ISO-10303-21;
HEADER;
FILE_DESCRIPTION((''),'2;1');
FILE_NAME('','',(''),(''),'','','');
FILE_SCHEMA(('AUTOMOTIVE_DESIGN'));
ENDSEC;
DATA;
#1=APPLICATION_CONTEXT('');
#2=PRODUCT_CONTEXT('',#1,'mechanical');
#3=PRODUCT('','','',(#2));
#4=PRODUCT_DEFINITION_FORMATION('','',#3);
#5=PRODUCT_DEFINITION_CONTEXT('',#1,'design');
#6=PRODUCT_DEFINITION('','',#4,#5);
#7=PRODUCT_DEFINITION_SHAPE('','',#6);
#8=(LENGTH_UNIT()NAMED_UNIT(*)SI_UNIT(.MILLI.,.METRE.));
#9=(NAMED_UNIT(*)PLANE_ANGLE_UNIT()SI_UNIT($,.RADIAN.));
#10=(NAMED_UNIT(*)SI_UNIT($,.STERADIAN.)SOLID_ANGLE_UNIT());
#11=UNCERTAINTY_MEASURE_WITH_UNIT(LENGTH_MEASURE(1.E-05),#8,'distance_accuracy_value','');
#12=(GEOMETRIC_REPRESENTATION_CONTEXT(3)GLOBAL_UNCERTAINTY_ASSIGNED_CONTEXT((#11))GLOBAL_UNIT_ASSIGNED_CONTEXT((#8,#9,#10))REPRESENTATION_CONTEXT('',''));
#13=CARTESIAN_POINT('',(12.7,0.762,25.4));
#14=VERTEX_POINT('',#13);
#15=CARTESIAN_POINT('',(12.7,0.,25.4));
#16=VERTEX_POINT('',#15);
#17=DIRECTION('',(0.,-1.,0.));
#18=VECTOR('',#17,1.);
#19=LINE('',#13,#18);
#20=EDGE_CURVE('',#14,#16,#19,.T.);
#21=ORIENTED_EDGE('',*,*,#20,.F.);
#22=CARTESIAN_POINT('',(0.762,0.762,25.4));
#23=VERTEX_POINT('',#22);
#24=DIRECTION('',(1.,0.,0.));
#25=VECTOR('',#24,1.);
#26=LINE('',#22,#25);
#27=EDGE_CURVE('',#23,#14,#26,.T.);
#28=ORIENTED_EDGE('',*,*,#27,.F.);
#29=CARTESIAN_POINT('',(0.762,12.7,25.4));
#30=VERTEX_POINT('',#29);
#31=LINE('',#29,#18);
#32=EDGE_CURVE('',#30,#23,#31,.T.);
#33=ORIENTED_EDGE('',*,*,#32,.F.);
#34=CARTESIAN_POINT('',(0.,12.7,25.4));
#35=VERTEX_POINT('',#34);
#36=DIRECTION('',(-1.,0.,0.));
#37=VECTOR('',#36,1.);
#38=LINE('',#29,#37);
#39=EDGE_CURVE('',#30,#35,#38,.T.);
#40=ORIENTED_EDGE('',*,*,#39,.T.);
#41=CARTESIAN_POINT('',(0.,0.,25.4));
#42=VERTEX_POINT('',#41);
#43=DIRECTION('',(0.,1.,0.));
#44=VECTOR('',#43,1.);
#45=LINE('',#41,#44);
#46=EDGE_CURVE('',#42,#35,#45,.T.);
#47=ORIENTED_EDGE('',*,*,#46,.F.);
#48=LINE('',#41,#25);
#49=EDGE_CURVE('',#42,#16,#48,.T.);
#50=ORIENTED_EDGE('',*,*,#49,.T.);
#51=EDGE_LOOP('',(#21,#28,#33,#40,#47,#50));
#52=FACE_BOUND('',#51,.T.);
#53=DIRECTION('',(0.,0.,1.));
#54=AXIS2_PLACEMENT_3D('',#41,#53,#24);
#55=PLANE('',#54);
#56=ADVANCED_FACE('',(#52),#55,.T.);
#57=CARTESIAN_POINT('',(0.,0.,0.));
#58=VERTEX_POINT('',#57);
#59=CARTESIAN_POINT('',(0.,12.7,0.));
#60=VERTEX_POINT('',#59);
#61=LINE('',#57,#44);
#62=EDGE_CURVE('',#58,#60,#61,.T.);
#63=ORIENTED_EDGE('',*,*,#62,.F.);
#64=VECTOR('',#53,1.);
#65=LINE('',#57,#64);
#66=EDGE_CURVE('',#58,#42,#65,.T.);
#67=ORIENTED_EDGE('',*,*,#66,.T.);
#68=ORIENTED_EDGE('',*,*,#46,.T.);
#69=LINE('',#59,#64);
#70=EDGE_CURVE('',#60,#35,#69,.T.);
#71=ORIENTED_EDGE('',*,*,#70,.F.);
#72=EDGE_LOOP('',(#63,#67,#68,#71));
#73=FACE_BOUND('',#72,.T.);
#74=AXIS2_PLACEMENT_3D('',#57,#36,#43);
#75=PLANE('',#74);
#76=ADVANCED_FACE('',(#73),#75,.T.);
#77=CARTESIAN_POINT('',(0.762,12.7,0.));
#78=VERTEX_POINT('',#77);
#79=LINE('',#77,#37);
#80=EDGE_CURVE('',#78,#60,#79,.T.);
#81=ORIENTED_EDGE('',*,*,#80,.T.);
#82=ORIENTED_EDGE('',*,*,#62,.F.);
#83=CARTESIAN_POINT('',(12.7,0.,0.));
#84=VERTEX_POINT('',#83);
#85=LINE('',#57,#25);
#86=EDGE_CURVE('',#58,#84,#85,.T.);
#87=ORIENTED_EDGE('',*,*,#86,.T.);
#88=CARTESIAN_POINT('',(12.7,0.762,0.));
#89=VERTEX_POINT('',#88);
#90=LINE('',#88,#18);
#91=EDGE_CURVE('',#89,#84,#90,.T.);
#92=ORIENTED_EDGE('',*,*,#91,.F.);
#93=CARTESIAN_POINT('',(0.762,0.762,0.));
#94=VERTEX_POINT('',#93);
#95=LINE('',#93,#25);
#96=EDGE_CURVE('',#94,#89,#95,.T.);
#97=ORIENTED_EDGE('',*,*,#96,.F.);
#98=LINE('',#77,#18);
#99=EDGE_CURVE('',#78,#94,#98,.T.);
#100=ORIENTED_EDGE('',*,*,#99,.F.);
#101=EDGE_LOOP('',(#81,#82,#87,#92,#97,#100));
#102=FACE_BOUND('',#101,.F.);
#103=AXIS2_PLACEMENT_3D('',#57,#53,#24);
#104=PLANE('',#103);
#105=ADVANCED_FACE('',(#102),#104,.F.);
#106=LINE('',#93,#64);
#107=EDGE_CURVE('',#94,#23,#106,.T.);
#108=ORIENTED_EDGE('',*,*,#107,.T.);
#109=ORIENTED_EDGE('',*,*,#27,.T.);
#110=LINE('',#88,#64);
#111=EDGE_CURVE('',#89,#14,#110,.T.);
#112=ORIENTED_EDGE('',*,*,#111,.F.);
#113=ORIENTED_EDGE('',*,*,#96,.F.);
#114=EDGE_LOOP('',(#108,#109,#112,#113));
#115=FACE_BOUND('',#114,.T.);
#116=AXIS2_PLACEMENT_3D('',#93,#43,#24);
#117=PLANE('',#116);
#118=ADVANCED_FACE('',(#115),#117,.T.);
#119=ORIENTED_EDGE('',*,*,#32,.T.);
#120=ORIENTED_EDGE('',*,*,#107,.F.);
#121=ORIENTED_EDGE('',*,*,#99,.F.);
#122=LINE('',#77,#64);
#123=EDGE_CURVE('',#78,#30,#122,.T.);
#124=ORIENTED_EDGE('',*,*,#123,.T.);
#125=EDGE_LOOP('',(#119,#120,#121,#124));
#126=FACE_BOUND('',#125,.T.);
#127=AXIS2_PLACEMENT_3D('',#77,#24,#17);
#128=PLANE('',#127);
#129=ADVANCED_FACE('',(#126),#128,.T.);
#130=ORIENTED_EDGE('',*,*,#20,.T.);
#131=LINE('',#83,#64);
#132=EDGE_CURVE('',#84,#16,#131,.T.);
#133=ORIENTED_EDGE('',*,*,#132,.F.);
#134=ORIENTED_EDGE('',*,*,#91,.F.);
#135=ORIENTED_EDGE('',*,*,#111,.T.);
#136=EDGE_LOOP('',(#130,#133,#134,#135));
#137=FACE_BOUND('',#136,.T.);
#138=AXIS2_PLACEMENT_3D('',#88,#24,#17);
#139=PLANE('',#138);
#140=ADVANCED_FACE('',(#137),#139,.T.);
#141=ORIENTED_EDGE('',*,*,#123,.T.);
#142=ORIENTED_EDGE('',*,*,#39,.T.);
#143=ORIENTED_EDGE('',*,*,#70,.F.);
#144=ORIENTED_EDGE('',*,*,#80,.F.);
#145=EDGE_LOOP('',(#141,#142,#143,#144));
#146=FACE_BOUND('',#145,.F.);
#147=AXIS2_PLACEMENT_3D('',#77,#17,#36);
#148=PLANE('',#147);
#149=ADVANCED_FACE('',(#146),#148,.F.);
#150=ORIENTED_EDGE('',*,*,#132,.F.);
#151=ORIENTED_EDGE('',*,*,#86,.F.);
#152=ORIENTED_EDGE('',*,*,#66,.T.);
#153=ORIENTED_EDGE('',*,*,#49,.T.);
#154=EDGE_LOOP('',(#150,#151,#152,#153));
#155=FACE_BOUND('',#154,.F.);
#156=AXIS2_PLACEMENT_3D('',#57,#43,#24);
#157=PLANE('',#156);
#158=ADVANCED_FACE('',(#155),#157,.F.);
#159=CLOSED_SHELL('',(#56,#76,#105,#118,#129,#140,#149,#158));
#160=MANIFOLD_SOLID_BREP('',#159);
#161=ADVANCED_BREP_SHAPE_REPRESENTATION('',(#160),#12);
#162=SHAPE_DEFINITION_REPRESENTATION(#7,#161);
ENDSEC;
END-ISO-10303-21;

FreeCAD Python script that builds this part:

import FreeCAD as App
import Part
import Sketcher
from FreeCAD import Vector
Q = App.Units.Quantity

doc = App.newDocument("Part")
params = doc.addObject("Spreadsheet::Sheet", "Params")
for row, (alias, value) in enumerate([
    ("sketch1_width", "0.5 in"),
    ("sketch1_width2", "0.03 in"),
    ("pad1_length", "1 in"),
], start=1):
    params.set(f"A{row}", alias)
    params.set(f"B{row}", "=" + value)
    params.setAlias(f"B{row}", alias)

body = doc.addObject("PartDesign::Body", "Body")

sketch1 = body.newObject("Sketcher::SketchObject", "Sketch")
sketch1.AttachmentSupport = (doc.getObject("XY_Plane"), [""])
sketch1.MapMode = "FlatFace"
sketch1.addGeometry([
    Part.LineSegment(Vector(0, 12.7, 0), Vector(0, 0, 0)),
    Part.LineSegment(Vector(0, 0, 0), Vector(12.7, 0, 0)),
    Part.LineSegment(Vector(12.7, 0, 0), Vector(12.7, 0.8, 0)),
    Part.LineSegment(Vector(12.7, 0.8, 0), Vector(0.8, 0.8, 0)),
    Part.LineSegment(Vector(0.8, 0.8, 0), Vector(0.8, 12.7, 0)),
    Part.LineSegment(Vector(0.8, 12.7, 0), Vector(0, 12.7, 0)),
], False)
sketch1.addConstraint([
    Sketcher.Constraint("Coincident", 0, 2, 1, 1),
    Sketcher.Constraint("Coincident", 1, 2, 2, 1),
    Sketcher.Constraint("Coincident", 2, 2, 3, 1),
    Sketcher.Constraint("Coincident", 3, 2, 4, 1),
    Sketcher.Constraint("Coincident", 4, 2, 5, 1),
    Sketcher.Constraint("Coincident", 5, 2, 0, 1),
    Sketcher.Constraint("Vertical", 0),
    Sketcher.Constraint("Horizontal", 1),
    Sketcher.Constraint("Vertical", 2),
    Sketcher.Constraint("Horizontal", 3),
    Sketcher.Constraint("Vertical", 4),
    Sketcher.Constraint("Horizontal", 5),
    Sketcher.Constraint("Coincident", 0, 2, -1, 1),
    Sketcher.Constraint("Equal", 1, 0),
    Sketcher.Constraint("Equal", 5, 2),
    Sketcher.Constraint("DistanceX", 1, 1, 1, 2, Q("0.5 in")),
    Sketcher.Constraint("DistanceX", 5, 2, 5, 1, Q("0.03 in")),
])
sketch1.setExpression("Constraints[15]", "Params.sketch1_width")
sketch1.setExpression("Constraints[16]", "Params.sketch1_width2")
pad1 = body.newObject("PartDesign::Pad", "Pad")
pad1.Profile = sketch1
pad1.setExpression("Length", "Params.pad1_length")

doc.recompute()
